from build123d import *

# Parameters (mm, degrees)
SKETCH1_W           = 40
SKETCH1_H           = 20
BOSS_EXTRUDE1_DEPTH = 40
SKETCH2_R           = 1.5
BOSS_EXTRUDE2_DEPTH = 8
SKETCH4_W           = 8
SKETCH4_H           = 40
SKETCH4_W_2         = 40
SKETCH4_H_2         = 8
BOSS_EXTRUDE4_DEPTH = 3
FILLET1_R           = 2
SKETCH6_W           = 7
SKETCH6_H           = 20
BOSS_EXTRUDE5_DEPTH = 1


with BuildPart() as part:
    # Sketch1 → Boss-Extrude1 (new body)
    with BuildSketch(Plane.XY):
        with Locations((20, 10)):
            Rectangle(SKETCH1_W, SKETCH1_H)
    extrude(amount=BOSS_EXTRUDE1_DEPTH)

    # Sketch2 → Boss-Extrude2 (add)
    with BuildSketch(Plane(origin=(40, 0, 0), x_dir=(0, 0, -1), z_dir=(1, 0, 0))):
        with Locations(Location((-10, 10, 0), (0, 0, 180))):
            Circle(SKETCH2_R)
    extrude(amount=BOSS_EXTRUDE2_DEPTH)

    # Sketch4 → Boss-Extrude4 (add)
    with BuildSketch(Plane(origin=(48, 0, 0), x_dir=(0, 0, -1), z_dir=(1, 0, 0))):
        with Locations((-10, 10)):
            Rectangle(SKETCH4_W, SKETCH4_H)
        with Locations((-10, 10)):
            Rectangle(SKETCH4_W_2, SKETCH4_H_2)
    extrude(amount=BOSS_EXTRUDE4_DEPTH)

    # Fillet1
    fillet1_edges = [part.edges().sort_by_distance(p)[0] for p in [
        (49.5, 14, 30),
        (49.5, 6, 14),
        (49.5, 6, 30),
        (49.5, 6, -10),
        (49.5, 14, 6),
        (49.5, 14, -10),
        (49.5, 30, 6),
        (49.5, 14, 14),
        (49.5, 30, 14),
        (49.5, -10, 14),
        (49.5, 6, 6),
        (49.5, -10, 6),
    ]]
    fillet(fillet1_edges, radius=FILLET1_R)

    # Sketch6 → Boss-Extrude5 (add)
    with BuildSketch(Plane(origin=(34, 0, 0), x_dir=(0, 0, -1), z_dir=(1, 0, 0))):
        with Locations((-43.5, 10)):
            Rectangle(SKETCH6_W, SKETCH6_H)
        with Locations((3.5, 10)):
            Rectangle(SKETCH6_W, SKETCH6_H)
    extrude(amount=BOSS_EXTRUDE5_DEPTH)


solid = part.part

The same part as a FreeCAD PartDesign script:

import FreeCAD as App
import Part
import Sketcher
from FreeCAD import Vector


def edges_at(feature, points):
    """Names of the edges that pass closest to the given points."""
    edges = feature.Shape.Edges
    near = lambda p: min(range(len(edges)), key=lambda i: edges[i].distToShape(Part.Vertex(*p))[0])
    return sorted({f"Edge{near(p) + 1}" for p in points})

doc = App.newDocument("Part")
body = doc.addObject("PartDesign::Body", "Body")

# Sketch on XY plane
sketch1 = body.newObject("Sketcher::SketchObject", "Sketch")
sketch1.AttachmentSupport = (doc.getObject("XY_Plane"), [""])
sketch1.MapMode = "FlatFace"
sketch1.addGeometry([
    Part.LineSegment(Vector(0, 20, 0), Vector(0, 0, 0)),
    Part.LineSegment(Vector(0, 0, 0), Vector(40, 0, 0)),
    Part.LineSegment(Vector(40, 0, 0), Vector(40, 20, 0)),
    Part.LineSegment(Vector(40, 20, 0), Vector(0, 20, 0)),
], False)
sketch1.addConstraint([
    Sketcher.Constraint("Coincident", 0, 2, 1, 1),
    Sketcher.Constraint("Coincident", 1, 2, 2, 1),
    Sketcher.Constraint("Coincident", 2, 2, 3, 1),
    Sketcher.Constraint("Coincident", 3, 2, 0, 1),
    Sketcher.Constraint("Vertical", 0),
    Sketcher.Constraint("Horizontal", 1),
    Sketcher.Constraint("Vertical", 2),
    Sketcher.Constraint("Horizontal", 3),
    Sketcher.Constraint("Coincident", 0, 2, -1, 1),
    Sketcher.Constraint("DistanceX", 1, 1, 1, 2, 40.0),
    Sketcher.Constraint("DistanceY", 0, 2, 0, 1, 20.0),
])
pad1 = body.newObject("PartDesign::Pad", "Pad")
pad1.Profile = sketch1
pad1.Length = 40

# Sketch on YZ plane
sketch2 = body.newObject("Sketcher::SketchObject", "Sketch001")
sketch2.AttachmentSupport = (doc.getObject("YZ_Plane"), [""])
sketch2.MapMode = "FlatFace"
sketch2.AttachmentOffset = App.Placement(Vector(0, 0, 40), App.Rotation())
sketch2.addGeometry(Part.Circle(Vector(10, 10, 0), Vector(0, 0, 1), 1.5), False)
sketch2.addConstraint([
    Sketcher.Constraint("Diameter", 0, 3.0),
    Sketcher.Constraint("DistanceX", -1, 1, 0, 3, 10.0),
    Sketcher.Constraint("DistanceY", -1, 1, 0, 3, 10.0),
])
pad2 = body.newObject("PartDesign::Pad", "Pad001")
pad2.Profile = sketch2
pad2.Length = 8

# Sketch on YZ plane
sketch3 = body.newObject("Sketcher::SketchObject", "Sketch002")
sketch3.AttachmentSupport = (doc.getObject("YZ_Plane"), [""])
sketch3.MapMode = "FlatFace"
sketch3.AttachmentOffset = App.Placement(Vector(0, 0, 48), App.Rotation())
sketch3.addGeometry([
    Part.LineSegment(Vector(6, 14, 0), Vector(-10, 14, 0)),  # 0
    Part.LineSegment(Vector(-10, 14, 0), Vector(-10, 6, 0)),  # 1
    Part.LineSegment(Vector(-10, 6, 0), Vector(6, 6, 0)),  # 2
    Part.LineSegment(Vector(6, 6, 0), Vector(6, -10, 0)),  # 3
    Part.LineSegment(Vector(6, -10, 0), Vector(14, -10, 0)),  # 4
    Part.LineSegment(Vector(14, -10, 0), Vector(14, 6, 0)),  # 5
    Part.LineSegment(Vector(14, 6, 0), Vector(30, 6, 0)),  # 6
    Part.LineSegment(Vector(30, 6, 0), Vector(30, 14, 0)),  # 7
    Part.LineSegment(Vector(30, 14, 0), Vector(14, 14, 0)),  # 8
    Part.LineSegment(Vector(14, 14, 0), Vector(14, 30, 0)),  # 9
    Part.LineSegment(Vector(14, 30, 0), Vector(6, 30, 0)),  # 10
    Part.LineSegment(Vector(6, 30, 0), Vector(6, 14, 0)),  # 11
], False)
sketch3.addConstraint([
    Sketcher.Constraint("Coincident", 0, 2, 1, 1),
    Sketcher.Constraint("Coincident", 1, 2, 2, 1),
    Sketcher.Constraint("Coincident", 2, 2, 3, 1),
    Sketcher.Constraint("Coincident", 3, 2, 4, 1),
    Sketcher.Constraint("Coincident", 4, 2, 5, 1),
    Sketcher.Constraint("Coincident", 5, 2, 6, 1),
    Sketcher.Constraint("Coincident", 6, 2, 7, 1),
    Sketcher.Constraint("Coincident", 7, 2, 8, 1),
    Sketcher.Constraint("Coincident", 8, 2, 9, 1),
    Sketcher.Constraint("Coincident", 9, 2, 10, 1),
    Sketcher.Constraint("Coincident", 10, 2, 11, 1),
    Sketcher.Constraint("Coincident", 11, 2, 0, 1),
    Sketcher.Constraint("Horizontal", 0),
    Sketcher.Constraint("Vertical", 1),
    Sketcher.Constraint("Horizontal", 2),
    Sketcher.Constraint("Vertical", 3),
    Sketcher.Constraint("Horizontal", 4),
    Sketcher.Constraint("Vertical", 5),
    Sketcher.Constraint("Horizontal", 6),
    Sketcher.Constraint("Vertical", 7),
    Sketcher.Constraint("Horizontal", 8),
    Sketcher.Constraint("Vertical", 9),
    Sketcher.Constraint("Horizontal", 10),
    Sketcher.Constraint("Vertical", 11),
    Sketcher.Constraint("Horizontal", 2, 2, 5, 2),
    Sketcher.Constraint("Horizontal", 0, 2, 7, 2),
    Sketcher.Constraint("Vertical", 5, 2, 8, 2),
    Sketcher.Constraint("Vertical", 3, 2, 10, 2),
    Sketcher.Constraint("Equal", 2, 6),
    Sketcher.Constraint("Equal", 10, 1),
    Sketcher.Constraint("Equal", 8, 3),
    Sketcher.Constraint("Equal", 5, 9),
    Sketcher.Constraint("DistanceX", 0, 2, 0, 1, 16.0),
    Sketcher.Constraint("DistanceX", 4, 1, 4, 2, 8.0),
    Sketcher.Constraint("DistanceX", 0, 2, -1, 1, 10.0),
    Sketcher.Constraint("DistanceY", -1, 1, 0, 2, 14.0),
])
pad3 = body.newObject("PartDesign::Pad", "Pad002")
pad3.Profile = sketch3
pad3.Length = 3
doc.recompute()

fillet = body.newObject("PartDesign::Fillet", "Fillet")
fillet.Base = (pad3, edges_at(pad3, [
    (49.5, 14, 30),
    (49.5, 6, 14),
    (49.5, 6, 30),
    (49.5, 6, -10),
    (49.5, 14, 6),
    (49.5, 14, -10),
    (49.5, 30, 6),
    (49.5, 14, 14),
    (49.5, 30, 14),
    (49.5, -10, 14),
    (49.5, 6, 6),
    (49.5, -10, 6),
]))
fillet.Radius = 2

# Sketch on YZ plane
sketch4 = body.newObject("Sketcher::SketchObject", "Sketch003")
sketch4.AttachmentSupport = (doc.getObject("YZ_Plane"), [""])
sketch4.MapMode = "FlatFace"
sketch4.AttachmentOffset = App.Placement(Vector(0, 0, 34), App.Rotation())
sketch4.addGeometry([
    Part.LineSegment(Vector(20, 47, 0), Vector(0, 47, 0)),  # 0
    Part.LineSegment(Vector(0, 47, 0), Vector(0, 40, 0)),  # 1
    Part.LineSegment(Vector(0, 40, 0), Vector(20, 40, 0)),  # 2
    Part.LineSegment(Vector(20, 40, 0), Vector(20, 47, 0)),  # 3
    Part.LineSegment(Vector(20, 0, 0), Vector(0, 0, 0)),  # 4
    Part.LineSegment(Vector(0, 0, 0), Vector(0, -7, 0)),  # 5
    Part.LineSegment(Vector(0, -7, 0), Vector(20, -7, 0)),  # 6
    Part.LineSegment(Vector(20, -7, 0), Vector(20, 0, 0)),  # 7
], False)
sketch4.addConstraint([
    Sketcher.Constraint("Coincident", 0, 2, 1, 1),
    Sketcher.Constraint("Coincident", 1, 2, 2, 1),
    Sketcher.Constraint("Coincident", 2, 2, 3, 1),
    Sketcher.Constraint("Coincident", 3, 2, 0, 1),
    Sketcher.Constraint("Coincident", 4, 2, 5, 1),
    Sketcher.Constraint("Coincident", 5, 2, 6, 1),
    Sketcher.Constraint("Coincident", 6, 2, 7, 1),
    Sketcher.Constraint("Coincident", 7, 2, 4, 1),
    Sketcher.Constraint("Horizontal", 0),
    Sketcher.Constraint("Vertical", 1),
    Sketcher.Constraint("Horizontal", 2),
    Sketcher.Constraint("Vertical", 3),
    Sketcher.Constraint("Horizontal", 4),
    Sketcher.Constraint("Vertical", 5),
    Sketcher.Constraint("Horizontal", 6),
    Sketcher.Constraint("Vertical", 7),
    Sketcher.Constraint("Coincident", 4, 2, -1, 1),
    Sketcher.Constraint("PointOnObject", 0, 2, -2),
    Sketcher.Constraint("Vertical", 3, 2, 6, 2),
    Sketcher.Constraint("Equal", 3, 5),
    Sketcher.Constraint("DistanceX", 0, 2, 0, 1, 20.0),
    Sketcher.Constraint("DistanceY", 1, 2, 1, 1, 7.0),
    Sketcher.Constraint("DistanceY", -1, 1, 0, 2, 47.0),
])
pad4 = body.newObject("PartDesign::Pad", "Pad003")
pad4.Profile = sketch4
pad4.Length = 1

doc.recompute()
